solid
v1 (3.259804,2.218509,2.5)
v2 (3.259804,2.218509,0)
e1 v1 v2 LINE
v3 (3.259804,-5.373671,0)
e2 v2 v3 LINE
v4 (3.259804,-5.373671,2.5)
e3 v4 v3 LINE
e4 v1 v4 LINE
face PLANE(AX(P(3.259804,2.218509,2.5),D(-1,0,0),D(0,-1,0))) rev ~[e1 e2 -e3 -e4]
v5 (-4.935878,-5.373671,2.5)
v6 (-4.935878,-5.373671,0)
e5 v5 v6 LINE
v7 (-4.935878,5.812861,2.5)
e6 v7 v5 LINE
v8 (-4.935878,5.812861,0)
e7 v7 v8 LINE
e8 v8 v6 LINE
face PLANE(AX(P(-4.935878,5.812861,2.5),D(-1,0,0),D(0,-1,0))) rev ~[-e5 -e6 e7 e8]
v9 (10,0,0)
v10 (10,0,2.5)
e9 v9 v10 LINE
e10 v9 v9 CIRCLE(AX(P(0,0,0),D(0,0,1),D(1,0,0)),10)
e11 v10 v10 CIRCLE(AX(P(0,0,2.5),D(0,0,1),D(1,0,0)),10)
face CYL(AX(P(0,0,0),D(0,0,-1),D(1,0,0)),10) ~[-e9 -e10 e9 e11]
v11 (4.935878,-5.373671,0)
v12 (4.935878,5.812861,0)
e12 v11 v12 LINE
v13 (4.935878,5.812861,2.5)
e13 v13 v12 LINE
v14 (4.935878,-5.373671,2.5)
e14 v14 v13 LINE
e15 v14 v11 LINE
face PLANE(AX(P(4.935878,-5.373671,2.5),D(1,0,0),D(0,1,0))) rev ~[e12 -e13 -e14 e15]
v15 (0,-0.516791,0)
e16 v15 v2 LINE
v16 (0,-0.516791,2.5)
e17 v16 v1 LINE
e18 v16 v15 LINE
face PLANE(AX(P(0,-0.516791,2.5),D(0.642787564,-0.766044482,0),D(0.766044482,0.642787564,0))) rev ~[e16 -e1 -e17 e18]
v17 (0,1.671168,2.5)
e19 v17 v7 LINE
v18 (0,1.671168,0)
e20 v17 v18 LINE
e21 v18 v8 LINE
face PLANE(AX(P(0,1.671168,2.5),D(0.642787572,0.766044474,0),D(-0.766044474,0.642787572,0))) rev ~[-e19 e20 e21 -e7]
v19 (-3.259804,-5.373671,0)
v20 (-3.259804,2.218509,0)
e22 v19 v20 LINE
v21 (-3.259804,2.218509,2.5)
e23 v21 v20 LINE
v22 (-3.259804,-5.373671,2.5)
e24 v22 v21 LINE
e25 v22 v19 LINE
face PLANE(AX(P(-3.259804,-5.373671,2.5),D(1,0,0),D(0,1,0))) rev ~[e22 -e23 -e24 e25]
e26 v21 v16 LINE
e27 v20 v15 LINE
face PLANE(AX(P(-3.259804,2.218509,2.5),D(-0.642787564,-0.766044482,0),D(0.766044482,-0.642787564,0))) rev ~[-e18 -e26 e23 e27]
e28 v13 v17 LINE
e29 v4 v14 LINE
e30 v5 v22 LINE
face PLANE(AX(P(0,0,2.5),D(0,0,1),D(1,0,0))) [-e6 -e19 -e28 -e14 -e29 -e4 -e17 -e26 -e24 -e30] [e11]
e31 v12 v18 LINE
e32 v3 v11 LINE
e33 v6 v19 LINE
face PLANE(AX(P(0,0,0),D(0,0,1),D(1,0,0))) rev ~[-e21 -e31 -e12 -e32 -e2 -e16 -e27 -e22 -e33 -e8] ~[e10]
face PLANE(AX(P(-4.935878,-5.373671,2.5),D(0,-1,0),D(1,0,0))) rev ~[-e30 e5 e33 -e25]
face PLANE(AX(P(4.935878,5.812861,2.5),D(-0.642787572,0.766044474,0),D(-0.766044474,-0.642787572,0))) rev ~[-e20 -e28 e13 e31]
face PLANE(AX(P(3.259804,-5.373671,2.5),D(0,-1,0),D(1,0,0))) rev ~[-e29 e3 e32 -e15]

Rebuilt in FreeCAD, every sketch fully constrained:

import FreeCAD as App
import Part
import Sketcher
Q = App.Units.Quantity


def add_polygon(sketch, points):
    """Adds a closed chain of lines whose ends are joined by coincident constraints."""
    first, n = sketch.GeometryCount, len(points)
    for a, b in zip(points, points[1:] + points[:1]):
        sketch.addGeometry(Part.LineSegment(App.Vector(*a, 0), App.Vector(*b, 0)), False)
    for i in range(n):
        sketch.addConstraint(Sketcher.Constraint("Coincident", first + i, 2, first + (i + 1) % n, 1))

doc = App.newDocument("Part")
body = doc.addObject("PartDesign::Body", "Body")

# Sketch on XY plane
sketch1 = doc.addObject("Sketcher::SketchObject", "Sketch")
body.addObject(sketch1)
sketch1.AttachmentSupport = (doc.XY_Plane, [""])
sketch1.MapMode = "FlatFace"
sketch1.addGeometry(Part.Circle(App.Vector(0, 0, 0), App.Vector(0, 0, 1), 10), False)
sketch1.addConstraint(Sketcher.Constraint("Coincident", 0, 3, -1, 1))
sketch1.addConstraint(Sketcher.Constraint("Diameter", 0, Q("20 mm")))
pad1 = doc.addObject("PartDesign::Pad", "Pad")
body.addObject(pad1)
pad1.Profile = sketch1
pad1.Length = 2.5

# Sketch on XY plane
sketch2 = doc.addObject("Sketcher::SketchObject", "Sketch001")
body.addObject(sketch2)
sketch2.AttachmentSupport = (doc.XY_Plane, [""])
sketch2.MapMode = "FlatFace"
sketch2.AttachmentOffset = App.Placement(App.Vector(0, 0, 2.5), App.Rotation())
add_polygon(sketch2, [(4.9, 5.8), (0, 1.7), (-4.9, 5.8), (-4.9, -5.4), (-3.3, -5.4), (-3.3, 2.2), (0, -0.5), (3.3, 2.2), (3.3, -5.4), (4.9, -5.4)])  # lines 0-9
sketch2.addConstraint(Sketcher.Constraint("Vertical", 2))
sketch2.addConstraint(Sketcher.Constraint("Horizontal", 3))
sketch2.addConstraint(Sketcher.Constraint("Vertical", 4))
sketch2.addConstraint(Sketcher.Constraint("Vertical", 7))
sketch2.addConstraint(Sketcher.Constraint("Horizontal", 8))
sketch2.addConstraint(Sketcher.Constraint("Vertical", 9))
sketch2.addConstraint(Sketcher.Constraint("Symmetric", 4, 2, 6, 2, -2))
sketch2.addConstraint(Sketcher.Constraint("Symmetric", 2, 2, 8, 2, -2))
sketch2.addConstraint(Sketcher.Constraint("PointOnObject", 0, 2, -2))
sketch2.addConstraint(Sketcher.Constraint("PointOnObject", 5, 2, -2))
sketch2.addConstraint(Sketcher.Constraint("Parallel", 1, 5))
sketch2.addConstraint(Sketcher.Constraint("Parallel", 0, 6))
sketch2.addConstraint(Sketcher.Constraint("Angle", 0, Q("-140.000003 deg")))
sketch2.addConstraint(Sketcher.Constraint("DistanceY", 4, 1, 4, 2, Q("7.59218 mm")))
sketch2.addConstraint(Sketcher.Constraint("DistanceY", 5, 2, 4, 2, Q("2.7353 mm")))
sketch2.addConstraint(Sketcher.Constraint("Distance", 0, Q("6.443331 mm")))
sketch2.addConstraint(Sketcher.Constraint("DistanceY", 2, 2, 2, 1, Q("11.186532 mm")))
sketch2.addConstraint(Sketcher.Constraint("DistanceY", -1, 1, 1, 2, Q("5.812861 mm")))
pocket1 = doc.addObject("PartDesign::Pocket", "Pocket")
body.addObject(pocket1)
pocket1.Profile = sketch2
pocket1.Type = "ThroughAll"

doc.recompute()
